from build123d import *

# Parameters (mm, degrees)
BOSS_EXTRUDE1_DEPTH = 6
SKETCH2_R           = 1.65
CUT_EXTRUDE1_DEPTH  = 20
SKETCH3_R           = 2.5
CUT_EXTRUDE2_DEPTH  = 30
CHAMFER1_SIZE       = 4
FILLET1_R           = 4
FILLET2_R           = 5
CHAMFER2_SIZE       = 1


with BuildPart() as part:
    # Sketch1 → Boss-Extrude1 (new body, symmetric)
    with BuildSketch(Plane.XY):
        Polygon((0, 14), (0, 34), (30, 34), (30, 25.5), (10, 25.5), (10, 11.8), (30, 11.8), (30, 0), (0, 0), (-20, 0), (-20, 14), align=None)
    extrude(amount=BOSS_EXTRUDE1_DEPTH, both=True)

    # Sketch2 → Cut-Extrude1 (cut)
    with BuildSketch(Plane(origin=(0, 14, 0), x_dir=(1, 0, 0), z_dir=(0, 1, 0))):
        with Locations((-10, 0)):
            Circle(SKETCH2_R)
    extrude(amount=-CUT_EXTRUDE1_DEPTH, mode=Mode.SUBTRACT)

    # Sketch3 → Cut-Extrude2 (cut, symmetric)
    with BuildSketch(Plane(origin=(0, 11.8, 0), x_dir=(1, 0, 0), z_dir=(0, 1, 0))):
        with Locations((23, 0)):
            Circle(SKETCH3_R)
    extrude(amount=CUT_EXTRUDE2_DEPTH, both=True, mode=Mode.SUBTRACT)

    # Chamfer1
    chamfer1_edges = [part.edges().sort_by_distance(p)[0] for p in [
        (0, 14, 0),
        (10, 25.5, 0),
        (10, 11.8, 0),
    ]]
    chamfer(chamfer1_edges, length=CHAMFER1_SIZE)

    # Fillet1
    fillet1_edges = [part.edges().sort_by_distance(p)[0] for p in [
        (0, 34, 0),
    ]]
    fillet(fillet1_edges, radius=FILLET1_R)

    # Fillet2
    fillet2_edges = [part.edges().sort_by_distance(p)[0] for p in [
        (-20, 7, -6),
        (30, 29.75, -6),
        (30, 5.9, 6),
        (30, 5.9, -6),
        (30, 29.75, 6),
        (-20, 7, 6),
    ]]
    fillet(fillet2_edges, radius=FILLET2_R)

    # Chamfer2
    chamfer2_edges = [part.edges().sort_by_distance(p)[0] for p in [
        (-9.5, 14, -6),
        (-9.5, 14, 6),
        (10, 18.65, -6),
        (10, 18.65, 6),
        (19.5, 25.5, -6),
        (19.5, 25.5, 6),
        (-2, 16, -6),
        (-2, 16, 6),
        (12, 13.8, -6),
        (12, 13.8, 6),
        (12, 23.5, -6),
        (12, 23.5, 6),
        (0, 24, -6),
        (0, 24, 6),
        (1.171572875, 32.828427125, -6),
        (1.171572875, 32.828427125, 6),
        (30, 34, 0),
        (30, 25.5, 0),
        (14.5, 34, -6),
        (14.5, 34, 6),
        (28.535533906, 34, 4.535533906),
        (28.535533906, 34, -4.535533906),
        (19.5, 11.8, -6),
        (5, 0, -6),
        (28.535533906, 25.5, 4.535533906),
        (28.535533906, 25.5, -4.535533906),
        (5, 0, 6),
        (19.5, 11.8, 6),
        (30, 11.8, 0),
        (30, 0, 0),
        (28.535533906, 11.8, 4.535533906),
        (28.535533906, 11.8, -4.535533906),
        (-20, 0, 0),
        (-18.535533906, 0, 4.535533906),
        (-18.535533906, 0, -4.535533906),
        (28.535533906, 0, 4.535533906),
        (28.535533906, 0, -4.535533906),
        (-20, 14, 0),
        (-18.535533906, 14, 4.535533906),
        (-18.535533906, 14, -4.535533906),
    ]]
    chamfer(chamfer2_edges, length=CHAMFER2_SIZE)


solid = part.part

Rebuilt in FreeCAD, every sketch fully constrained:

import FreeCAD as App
import Part
import Sketcher
from FreeCAD import Vector


def edges_at(feature, points):
    """Names of the edges that pass closest to the given points."""
    edges = feature.Shape.Edges
    near = lambda p: min(range(len(edges)), key=lambda i: edges[i].distToShape(Part.Vertex(*p))[0])
    return sorted({f"Edge{near(p) + 1}" for p in points})

doc = App.newDocument("Part")
params = doc.addObject("Spreadsheet::Sheet", "Params")
for row, (alias, value) in enumerate([
    ("sketch1_width", "20 mm"),
    ("sketch1_width2", "50 mm"),
    ("sketch1_height", "14 mm"),
    ("sketch1_height2", "11.8 mm"),
    ("sketch1_height3", "13.7 mm"),
    ("pad1_length", "12 mm"),
    ("sketch2_diameter", "3.3 mm"),
    ("pocket1_length", "20 mm"),
    ("sketch3_diameter", "5 mm"),
    ("pocket2_length", "60 mm"),
    ("chamfer_size", "4 mm"),
    ("fillet_radius", "4 mm"),
    ("fillet2_radius", "5 mm"),
    ("chamfer2_size", "1 mm"),
], start=1):
    params.set(f"A{row}", alias)
    params.set(f"B{row}", "=" + value)
    params.setAlias(f"B{row}", alias)

body = doc.addObject("PartDesign::Body", "Body")

# Sketch on XY plane
sketch1 = body.newObject("Sketcher::SketchObject", "Sketch")
sketch1.AttachmentSupport = (doc.getObject("XY_Plane"), [""])
sketch1.MapMode = "FlatFace"
sketch1.addGeometry([
    Part.LineSegment(Vector(0, 34, 0), Vector(0, 14, 0)),  # 0
    Part.LineSegment(Vector(0, 14, 0), Vector(-20, 14, 0)),  # 1
    Part.LineSegment(Vector(-20, 14, 0), Vector(-20, 0, 0)),  # 2
    Part.LineSegment(Vector(-20, 0, 0), Vector(30, 0, 0)),  # 3
    Part.LineSegment(Vector(30, 0, 0), Vector(30, 11.8, 0)),  # 4
    Part.LineSegment(Vector(30, 11.8, 0), Vector(10, 11.8, 0)),  # 5
    Part.LineSegment(Vector(10, 11.8, 0), Vector(10, 25.5, 0)),  # 6
    Part.LineSegment(Vector(10, 25.5, 0), Vector(30, 25.5, 0)),  # 7
    Part.LineSegment(Vector(30, 25.5, 0), Vector(30, 34, 0)),  # 8
    Part.LineSegment(Vector(30, 34, 0), Vector(0, 34, 0)),  # 9
], False)
sketch1.addConstraint([
    Sketcher.Constraint("Coincident", 0, 2, 1, 1),
    Sketcher.Constraint("Coincident", 1, 2, 2, 1),
    Sketcher.Constraint("Coincident", 2, 2, 3, 1),
    Sketcher.Constraint("Coincident", 3, 2, 4, 1),
    Sketcher.Constraint("Coincident", 4, 2, 5, 1),
    Sketcher.Constraint("Coincident", 5, 2, 6, 1),
    Sketcher.Constraint("Coincident", 6, 2, 7, 1),
    Sketcher.Constraint("Coincident", 7, 2, 8, 1),
    Sketcher.Constraint("Coincident", 8, 2, 9, 1),
    Sketcher.Constraint("Coincident", 9, 2, 0, 1),
    Sketcher.Constraint("Vertical", 0),
    Sketcher.Constraint("Horizontal", 1),
    Sketcher.Constraint("Vertical", 2),
    Sketcher.Constraint("Horizontal", 3),
    Sketcher.Constraint("Vertical", 4),
    Sketcher.Constraint("Horizontal", 5),
    Sketcher.Constraint("Vertical", 6),
    Sketcher.Constraint("Horizontal", 7),
    Sketcher.Constraint("Vertical", 8),
    Sketcher.Constraint("Horizontal", 9),
    Sketcher.Constraint("PointOnObject", 0, 2, -2),
    Sketcher.Constraint("PointOnObject", 2, 2, -1),
    Sketcher.Constraint("Vertical", 4, 2, 7, 2),
    Sketcher.Constraint("Equal", 1, 5),
    Sketcher.Constraint("Equal", 7, 0),
    Sketcher.Constraint("DistanceX", 1, 2, 1, 1, 20.0),
    Sketcher.Constraint("DistanceX", 3, 1, 3, 2, 50.0),
    Sketcher.Constraint("DistanceY", 2, 2, 2, 1, 14.0),
    Sketcher.Constraint("DistanceY", 4, 1, 4, 2, 11.8),
    Sketcher.Constraint("DistanceY", 6, 1, 6, 2, 13.7),
])
sketch1.setExpression("Constraints[25]", "Params.sketch1_width")
sketch1.setExpression("Constraints[26]", "Params.sketch1_width2")
sketch1.setExpression("Constraints[27]", "Params.sketch1_height")
sketch1.setExpression("Constraints[28]", "Params.sketch1_height2")
sketch1.setExpression("Constraints[29]", "Params.sketch1_height3")
pad1 = body.newObject("PartDesign::Pad", "Pad")
pad1.Profile = sketch1
pad1.setExpression("Length", "Params.pad1_length")
pad1.Midplane = True

# Sketch on XZ plane
sketch2 = body.newObject("Sketcher::SketchObject", "Sketch001")
sketch2.AttachmentSupport = (doc.getObject("XZ_Plane"), [""])
sketch2.MapMode = "FlatFace"
sketch2.AttachmentOffset = App.Placement(Vector(0, 0, -14), App.Rotation())
sketch2.addGeometry(Part.Circle(Vector(-10, 0, 0), Vector(0, 0, 1), 1.65), False)
sketch2.addConstraint([
    Sketcher.Constraint("PointOnObject", 0, 3, -1),
    Sketcher.Constraint("Diameter", 0, 3.3),
    Sketcher.Constraint("DistanceX", 0, 3, -1, 1, 10.0),
])
sketch2.setExpression("Constraints[1]", "Params.sketch2_diameter")
pocket1 = body.newObject("PartDesign::Pocket", "Pocket")
pocket1.Profile = sketch2
pocket1.setExpression("Length", "Params.pocket1_length")
pocket1.Reversed = True

# Sketch on XZ plane
sketch3 = body.newObject("Sketcher::SketchObject", "Sketch002")
sketch3.AttachmentSupport = (doc.getObject("XZ_Plane"), [""])
sketch3.MapMode = "FlatFace"
sketch3.AttachmentOffset = App.Placement(Vector(0, 0, -11.8), App.Rotation())
sketch3.addGeometry(Part.Circle(Vector(23, 0, 0), Vector(0, 0, 1), 2.5), False)
sketch3.addConstraint([
    Sketcher.Constraint("PointOnObject", 0, 3, -1),
    Sketcher.Constraint("Diameter", 0, 5.0),
    Sketcher.Constraint("DistanceX", -1, 1, 0, 3, 23.0),
])
sketch3.setExpression("Constraints[1]", "Params.sketch3_diameter")
pocket2 = body.newObject("PartDesign::Pocket", "Pocket001")
pocket2.Profile = sketch3
pocket2.setExpression("Length", "Params.pocket2_length")
pocket2.Midplane = True
doc.recompute()

chamfer = body.newObject("PartDesign::Chamfer", "Chamfer")
chamfer.Base = (pocket2, edges_at(pocket2, [(0, 14, 0), (10, 25.5, 0), (10, 11.8, 0)]))
chamfer.setExpression("Size", "Params.chamfer_size")
doc.recompute()

fillet = body.newObject("PartDesign::Fillet", "Fillet")
fillet.Base = (chamfer, edges_at(chamfer, [(0, 34, 0)]))
fillet.setExpression("Radius", "Params.fillet_radius")
doc.recompute()

fillet2 = body.newObject("PartDesign::Fillet", "Fillet001")
fillet2.Base = (fillet, edges_at(fillet, [
    (-20, 7, -6),
    (30, 29.75, -6),
    (30, 5.9, 6),
    (30, 5.9, -6),
    (30, 29.75, 6),
    (-20, 7, 6),
]))
fillet2.setExpression("Radius", "Params.fillet2_radius")
doc.recompute()

chamfer2 = body.newObject("PartDesign::Chamfer", "Chamfer001")
chamfer2.Base = (fillet2, edges_at(fillet2, [
    (-9.5, 14, -6),
    (-9.5, 14, 6),
    (10, 18.65, -6),
    (10, 18.65, 6),
    (19.5, 25.5, -6),
    (19.5, 25.5, 6),
    (-2, 16, -6),
    (-2, 16, 6),
    (12, 13.8, -6),
    (12, 13.8, 6),
    (12, 23.5, -6),
    (12, 23.5, 6),
    (0, 24, -6),
    (0, 24, 6),
    (1.172, 32.828, -6),
    (1.172, 32.828, 6),
    (30, 34, 0),
    (30, 25.5, 0),
    (14.5, 34, -6),
    (14.5, 34, 6),
    (28.536, 34, 4.536),
    (28.536, 34, -4.536),
    (19.5, 11.8, -6),
    (5, 0, -6),
    (28.536, 25.5, 4.536),
    (28.536, 25.5, -4.536),
    (5, 0, 6),
    (19.5, 11.8, 6),
    (30, 11.8, 0),
    (30, 0, 0),
    (28.536, 11.8, 4.536),
    (28.536, 11.8, -4.536),
    (-20, 0, 0),
    (-18.536, 0, 4.536),
    (-18.536, 0, -4.536),
    (28.536, 0, 4.536),
    (28.536, 0, -4.536),
    (-20, 14, 0),
    (-18.536, 14, 4.536),
    (-18.536, 14, -4.536),
]))
chamfer2.setExpression("Size", "Params.chamfer2_size")

doc.recompute()
